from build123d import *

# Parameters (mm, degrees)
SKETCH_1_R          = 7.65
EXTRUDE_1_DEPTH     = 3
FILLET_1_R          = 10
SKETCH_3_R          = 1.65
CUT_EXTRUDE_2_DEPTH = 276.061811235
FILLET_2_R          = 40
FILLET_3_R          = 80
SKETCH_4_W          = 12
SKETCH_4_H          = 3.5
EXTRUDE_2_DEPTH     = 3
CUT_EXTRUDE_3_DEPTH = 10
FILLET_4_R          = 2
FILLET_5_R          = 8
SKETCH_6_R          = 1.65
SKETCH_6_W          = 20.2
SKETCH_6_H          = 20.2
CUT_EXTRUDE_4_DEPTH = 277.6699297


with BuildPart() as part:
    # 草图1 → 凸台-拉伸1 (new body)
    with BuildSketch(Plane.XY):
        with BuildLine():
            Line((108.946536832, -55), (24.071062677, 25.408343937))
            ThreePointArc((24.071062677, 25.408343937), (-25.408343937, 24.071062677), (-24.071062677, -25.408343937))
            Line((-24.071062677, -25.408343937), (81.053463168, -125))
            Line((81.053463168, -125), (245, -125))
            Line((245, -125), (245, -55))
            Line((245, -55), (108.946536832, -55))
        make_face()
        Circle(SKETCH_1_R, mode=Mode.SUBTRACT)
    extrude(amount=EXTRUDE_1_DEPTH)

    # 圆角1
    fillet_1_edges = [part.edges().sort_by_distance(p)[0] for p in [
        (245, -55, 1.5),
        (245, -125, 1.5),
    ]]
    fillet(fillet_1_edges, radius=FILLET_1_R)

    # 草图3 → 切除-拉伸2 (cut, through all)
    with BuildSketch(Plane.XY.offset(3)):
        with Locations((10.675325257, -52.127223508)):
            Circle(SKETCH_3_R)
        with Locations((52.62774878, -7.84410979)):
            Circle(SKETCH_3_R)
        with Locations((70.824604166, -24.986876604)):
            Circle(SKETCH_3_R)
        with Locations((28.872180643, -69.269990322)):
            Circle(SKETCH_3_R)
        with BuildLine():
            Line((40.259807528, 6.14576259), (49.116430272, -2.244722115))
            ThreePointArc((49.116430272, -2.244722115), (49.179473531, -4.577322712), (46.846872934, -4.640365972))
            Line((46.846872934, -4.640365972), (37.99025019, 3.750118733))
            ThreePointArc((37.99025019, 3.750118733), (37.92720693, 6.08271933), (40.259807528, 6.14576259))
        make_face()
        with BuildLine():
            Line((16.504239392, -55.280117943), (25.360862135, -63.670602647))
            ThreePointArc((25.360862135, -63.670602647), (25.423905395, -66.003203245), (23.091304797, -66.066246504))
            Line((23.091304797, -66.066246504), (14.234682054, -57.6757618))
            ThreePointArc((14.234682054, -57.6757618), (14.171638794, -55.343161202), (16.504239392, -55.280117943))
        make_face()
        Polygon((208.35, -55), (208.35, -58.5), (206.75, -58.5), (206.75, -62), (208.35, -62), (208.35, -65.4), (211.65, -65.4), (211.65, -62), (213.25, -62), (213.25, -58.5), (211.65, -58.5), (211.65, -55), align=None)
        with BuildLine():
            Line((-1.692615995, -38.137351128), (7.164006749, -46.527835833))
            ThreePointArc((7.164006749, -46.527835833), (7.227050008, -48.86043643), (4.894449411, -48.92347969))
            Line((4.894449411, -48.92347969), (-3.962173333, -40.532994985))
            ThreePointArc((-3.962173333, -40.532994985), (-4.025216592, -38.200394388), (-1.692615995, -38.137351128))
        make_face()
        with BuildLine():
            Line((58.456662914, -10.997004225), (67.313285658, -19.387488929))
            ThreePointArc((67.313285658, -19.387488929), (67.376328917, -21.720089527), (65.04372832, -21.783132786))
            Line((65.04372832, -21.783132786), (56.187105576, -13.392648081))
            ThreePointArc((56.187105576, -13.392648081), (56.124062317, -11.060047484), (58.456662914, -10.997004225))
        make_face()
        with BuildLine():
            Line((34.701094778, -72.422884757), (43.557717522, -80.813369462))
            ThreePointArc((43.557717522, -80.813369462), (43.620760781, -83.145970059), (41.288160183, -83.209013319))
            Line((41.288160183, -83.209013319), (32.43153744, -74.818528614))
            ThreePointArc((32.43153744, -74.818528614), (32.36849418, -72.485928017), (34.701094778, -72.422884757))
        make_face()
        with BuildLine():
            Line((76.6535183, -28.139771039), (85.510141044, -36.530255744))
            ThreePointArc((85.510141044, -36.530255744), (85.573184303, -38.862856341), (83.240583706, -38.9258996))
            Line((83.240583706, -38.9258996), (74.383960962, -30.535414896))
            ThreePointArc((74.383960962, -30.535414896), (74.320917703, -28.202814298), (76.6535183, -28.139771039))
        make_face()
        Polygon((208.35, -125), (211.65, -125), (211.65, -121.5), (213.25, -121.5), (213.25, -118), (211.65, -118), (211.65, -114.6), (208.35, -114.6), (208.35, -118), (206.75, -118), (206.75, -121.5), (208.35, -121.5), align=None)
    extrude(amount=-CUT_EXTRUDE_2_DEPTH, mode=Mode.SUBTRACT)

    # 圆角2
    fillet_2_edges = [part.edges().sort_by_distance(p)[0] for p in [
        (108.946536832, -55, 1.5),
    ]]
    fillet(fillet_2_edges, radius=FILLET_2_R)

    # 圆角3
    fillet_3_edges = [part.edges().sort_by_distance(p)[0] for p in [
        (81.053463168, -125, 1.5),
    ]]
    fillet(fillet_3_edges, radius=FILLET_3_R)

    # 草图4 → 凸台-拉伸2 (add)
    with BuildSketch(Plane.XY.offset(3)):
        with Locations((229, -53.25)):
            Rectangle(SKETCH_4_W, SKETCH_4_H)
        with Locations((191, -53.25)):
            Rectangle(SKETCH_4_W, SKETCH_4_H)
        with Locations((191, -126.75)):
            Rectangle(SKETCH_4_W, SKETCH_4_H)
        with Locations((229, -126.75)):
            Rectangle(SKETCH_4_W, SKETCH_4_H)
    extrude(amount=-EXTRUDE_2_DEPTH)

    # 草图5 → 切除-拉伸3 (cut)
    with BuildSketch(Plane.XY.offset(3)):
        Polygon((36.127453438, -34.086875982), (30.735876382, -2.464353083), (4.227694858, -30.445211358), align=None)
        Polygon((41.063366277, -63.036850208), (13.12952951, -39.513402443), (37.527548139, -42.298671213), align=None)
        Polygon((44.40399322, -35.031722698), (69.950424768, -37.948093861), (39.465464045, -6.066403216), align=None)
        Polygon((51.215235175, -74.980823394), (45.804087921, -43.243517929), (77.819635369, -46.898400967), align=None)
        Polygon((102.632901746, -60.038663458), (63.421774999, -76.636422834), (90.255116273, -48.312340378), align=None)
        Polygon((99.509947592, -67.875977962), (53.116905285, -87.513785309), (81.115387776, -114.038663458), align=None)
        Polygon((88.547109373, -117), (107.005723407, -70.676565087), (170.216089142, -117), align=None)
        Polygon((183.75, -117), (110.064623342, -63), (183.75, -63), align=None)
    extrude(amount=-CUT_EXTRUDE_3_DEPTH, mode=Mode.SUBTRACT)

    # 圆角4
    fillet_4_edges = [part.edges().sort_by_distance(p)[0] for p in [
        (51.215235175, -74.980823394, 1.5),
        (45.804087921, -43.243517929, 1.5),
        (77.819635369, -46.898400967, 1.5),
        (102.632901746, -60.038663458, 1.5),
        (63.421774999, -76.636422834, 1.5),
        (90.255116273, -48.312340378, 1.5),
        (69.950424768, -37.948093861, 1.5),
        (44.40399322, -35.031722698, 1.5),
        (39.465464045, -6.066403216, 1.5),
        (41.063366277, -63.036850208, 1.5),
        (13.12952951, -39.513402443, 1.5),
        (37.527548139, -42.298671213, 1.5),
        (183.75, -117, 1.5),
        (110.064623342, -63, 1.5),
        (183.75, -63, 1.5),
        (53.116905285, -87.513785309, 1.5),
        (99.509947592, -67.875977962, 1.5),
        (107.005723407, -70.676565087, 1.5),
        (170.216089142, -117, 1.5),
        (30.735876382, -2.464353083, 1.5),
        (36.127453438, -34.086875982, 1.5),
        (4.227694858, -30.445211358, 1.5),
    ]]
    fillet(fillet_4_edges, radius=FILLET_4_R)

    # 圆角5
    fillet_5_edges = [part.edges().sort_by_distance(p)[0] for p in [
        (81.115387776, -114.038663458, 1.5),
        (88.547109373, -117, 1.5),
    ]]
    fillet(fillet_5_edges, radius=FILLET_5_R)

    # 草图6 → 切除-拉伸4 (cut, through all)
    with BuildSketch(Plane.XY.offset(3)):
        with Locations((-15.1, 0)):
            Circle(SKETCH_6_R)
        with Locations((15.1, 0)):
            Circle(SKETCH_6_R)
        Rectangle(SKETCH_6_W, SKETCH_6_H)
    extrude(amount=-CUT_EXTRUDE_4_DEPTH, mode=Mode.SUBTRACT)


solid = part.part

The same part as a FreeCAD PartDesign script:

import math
import FreeCAD as App
import Part
import Sketcher
from FreeCAD import Vector


def edges_at(feature, points):
    """Names of the edges that pass closest to the given points."""
    edges = feature.Shape.Edges
    near = lambda p: min(range(len(edges)), key=lambda i: edges[i].distToShape(Part.Vertex(*p))[0])
    return sorted({f"Edge{near(p) + 1}" for p in points})


def add_polygon(sketch, points):
    """Adds a closed chain of lines whose ends are joined by coincident constraints."""
    first, n = sketch.GeometryCount, len(points)
    for a, b in zip(points, points[1:] + points[:1]):
        sketch.addGeometry(Part.LineSegment(App.Vector(*a, 0), App.Vector(*b, 0)), False)
    for i in range(n):
        sketch.addConstraint(Sketcher.Constraint("Coincident", first + i, 2, first + (i + 1) % n, 1))

doc = App.newDocument("Part")
body = doc.addObject("PartDesign::Body", "Body")

# Sketch on XY plane
sketch1 = doc.addObject("Sketcher::SketchObject", "Sketch")
body.addObject(sketch1)
sketch1.AttachmentSupport = (doc.XY_Plane, [""])
sketch1.MapMode = "FlatFace"
sketch1.addGeometry(Part.LineSegment(Vector(109, -55, 0), Vector(24, 25, 0)), False)
sketch1.addGeometry(Part.ArcOfCircle(Part.Circle(Vector(0, 0, 0), Vector(0, 0, 1), 35), math.radians(47), math.radians(227)), False)
sketch1.addGeometry(Part.LineSegment(Vector(-24, -25, 0), Vector(81, -125, 0)), False)
sketch1.addGeometry(Part.LineSegment(Vector(81, -125, 0), Vector(245, -125, 0)), False)
sketch1.addGeometry(Part.LineSegment(Vector(245, -125, 0), Vector(245, -55, 0)), False)
sketch1.addGeometry(Part.LineSegment(Vector(245, -55, 0), Vector(109, -55, 0)), False)
sketch1.addGeometry(Part.Circle(Vector(0, 0, 0), Vector(0, 0, 1), 8), False)
sketch1.addConstraint(Sketcher.Constraint("Tangent", 0, 2, 1, 1))
sketch1.addConstraint(Sketcher.Constraint("Tangent", 1, 2, 2, 1))
sketch1.addConstraint(Sketcher.Constraint("Coincident", 2, 2, 3, 1))
sketch1.addConstraint(Sketcher.Constraint("Coincident", 3, 2, 4, 1))
sketch1.addConstraint(Sketcher.Constraint("Coincident", 4, 2, 5, 1))
sketch1.addConstraint(Sketcher.Constraint("Coincident", 5, 2, 0, 1))
sketch1.addConstraint(Sketcher.Constraint("Horizontal", 3))
sketch1.addConstraint(Sketcher.Constraint("Vertical", 4))
sketch1.addConstraint(Sketcher.Constraint("Horizontal", 5))
sketch1.addConstraint(Sketcher.Constraint("Coincident", 1, 3, -1, 1))
sketch1.addConstraint(Sketcher.Constraint("Coincident", 6, 3, -1, 1))
sketch1.addConstraint(Sketcher.Constraint("Parallel", 0, 2))
sketch1.addConstraint(Sketcher.Constraint("Radius", 1, 35.0))
sketch1.addConstraint(Sketcher.Constraint("Diameter", 6, 15.3))
sketch1.addConstraint(Sketcher.Constraint("DistanceY", 4, 1, 4, 2, 70.0))
sketch1.addConstraint(Sketcher.Constraint("DistanceY", 2, 2, -1, 1, 125.0))
sketch1.addConstraint(Sketcher.Constraint("DistanceX", -1, 1, 3, 2, 245.0))
sketch1.addConstraint(Sketcher.Constraint("DistanceX", 0, 2, 2, 2, 56.9824))
pad1 = doc.addObject("PartDesign::Pad", "Pad")
body.addObject(pad1)
pad1.Profile = sketch1
pad1.Length = 3
doc.recompute()

fillet = doc.addObject("PartDesign::Fillet", "Fillet")
body.addObject(fillet)
fillet.Base = (pad1, edges_at(pad1, [(245, -55, 1.5), (245, -125, 1.5)]))
fillet.Radius = 10

# Sketch on XY plane
sketch2 = doc.addObject("Sketcher::SketchObject", "Sketch001")
body.addObject(sketch2)
sketch2.AttachmentSupport = (doc.XY_Plane, [""])
sketch2.MapMode = "FlatFace"
sketch2.AttachmentOffset = App.Placement(Vector(0, 0, 3), App.Rotation())
sketch2.addGeometry(Part.Circle(Vector(10.7, -52.1, 0), Vector(0, 0, 1), 1.6), False)  # 0
sketch2.addGeometry(Part.Circle(Vector(52.6, -7.8, 0), Vector(0, 0, 1), 1.6), False)  # 1
sketch2.addGeometry(Part.Circle(Vector(70.8, -25, 0), Vector(0, 0, 1), 1.6), False)  # 2
sketch2.addGeometry(Part.Circle(Vector(28.9, -69.3, 0), Vector(0, 0, 1), 1.6), False)  # 3
sketch2.addGeometry(Part.LineSegment(Vector(49.1, -2.2, 0), Vector(40.3, 6.1, 0)), False)  # 4
sketch2.addGeometry(Part.ArcOfCircle(Part.Circle(Vector(39.1, 4.9, 0), Vector(0, 0, 1), 1.6), math.radians(47), math.radians(227)), False)  # 5
sketch2.addGeometry(Part.LineSegment(Vector(38, 3.8, 0), Vector(46.8, -4.6, 0)), False)  # 6
sketch2.addGeometry(Part.ArcOfCircle(Part.Circle(Vector(48, -3.4, 0), Vector(0, 0, 1), 1.6), math.radians(-133), math.radians(47)), False)  # 7
sketch2.addGeometry(Part.LineSegment(Vector(25.4, -63.7, 0), Vector(16.5, -55.3, 0)), False)  # 8
sketch2.addGeometry(Part.ArcOfCircle(Part.Circle(Vector(15.4, -56.5, 0), Vector(0, 0, 1), 1.6), math.radians(47), math.radians(227)), False)  # 9
sketch2.addGeometry(Part.LineSegment(Vector(14.2, -57.7, 0), Vector(23.1, -66.1, 0)), False)  # 10
sketch2.addGeometry(Part.ArcOfCircle(Part.Circle(Vector(24.2, -64.9, 0), Vector(0, 0, 1), 1.6), math.radians(-133), math.radians(47)), False)  # 11
add_polygon(sketch2, [(208.3, -55), (208.3, -58.5), (206.8, -58.5), (206.8, -62), (208.3, -62), (208.3, -65.4), (211.7, -65.4), (211.7, -62), (213.2, -62), (213.2, -58.5), (211.7, -58.5), (211.7, -55)])  # lines 12-23
sketch2.addGeometry(Part.LineSegment(Vector(7.2, -46.5, 0), Vector(-1.7, -38.1, 0)), False)  # 24
sketch2.addGeometry(Part.ArcOfCircle(Part.Circle(Vector(-2.8, -39.3, 0), Vector(0, 0, 1), 1.6), math.radians(47), math.radians(227)), False)  # 25
sketch2.addGeometry(Part.LineSegment(Vector(-4, -40.5, 0), Vector(4.9, -48.9, 0)), False)  # 26
sketch2.addGeometry(Part.ArcOfCircle(Part.Circle(Vector(6, -47.7, 0), Vector(0, 0, 1), 1.6), math.radians(-133), math.radians(47)), False)  # 27
sketch2.addGeometry(Part.LineSegment(Vector(67.3, -19.4, 0), Vector(58.5, -11, 0)), False)  # 28
sketch2.addGeometry(Part.ArcOfCircle(Part.Circle(Vector(57.3, -12.2, 0), Vector(0, 0, 1), 1.6), math.radians(47), math.radians(227)), False)  # 29
sketch2.addGeometry(Part.LineSegment(Vector(56.2, -13.4, 0), Vector(65, -21.8, 0)), False)  # 30
sketch2.addGeometry(Part.ArcOfCircle(Part.Circle(Vector(66.2, -20.6, 0), Vector(0, 0, 1), 1.6), math.radians(-133), math.radians(47)), False)  # 31
sketch2.addGeometry(Part.LineSegment(Vector(43.6, -80.8, 0), Vector(34.7, -72.4, 0)), False)  # 32
sketch2.addGeometry(Part.ArcOfCircle(Part.Circle(Vector(33.6, -73.6, 0), Vector(0, 0, 1), 1.6), math.radians(47), math.radians(227)), False)  # 33
sketch2.addGeometry(Part.LineSegment(Vector(32.4, -74.8, 0), Vector(41.3, -83.2, 0)), False)  # 34
sketch2.addGeometry(Part.ArcOfCircle(Part.Circle(Vector(42.4, -82, 0), Vector(0, 0, 1), 1.6), math.radians(-133), math.radians(47)), False)  # 35
sketch2.addGeometry(Part.LineSegment(Vector(85.5, -36.5, 0), Vector(76.7, -28.1, 0)), False)  # 36
sketch2.addGeometry(Part.ArcOfCircle(Part.Circle(Vector(75.5, -29.3, 0), Vector(0, 0, 1), 1.6), math.radians(47), math.radians(227)), False)  # 37
sketch2.addGeometry(Part.LineSegment(Vector(74.4, -30.5, 0), Vector(83.2, -38.9, 0)), False)  # 38
sketch2.addGeometry(Part.ArcOfCircle(Part.Circle(Vector(84.4, -37.7, 0), Vector(0, 0, 1), 1.6), math.radians(-133), math.radians(47)), False)  # 39
add_polygon(sketch2, [(208.3, -125), (211.7, -125), (211.7, -121.5), (213.2, -121.5), (213.2, -118), (211.7, -118), (211.7, -114.6), (208.3, -114.6), (208.3, -118), (206.8, -118), (206.8, -121.5), (208.3, -121.5)])  # lines 40-51
sketch2.addConstraint(Sketcher.Constraint("Tangent", 4, 2, 5, 1))
sketch2.addConstraint(Sketcher.Constraint("Tangent", 5, 2, 6, 1))
sketch2.addConstraint(Sketcher.Constraint("Tangent", 6, 2, 7, 1))
sketch2.addConstraint(Sketcher.Constraint("Tangent", 7, 2, 4, 1))
sketch2.addConstraint(Sketcher.Constraint("Tangent", 8, 2, 9, 1))
sketch2.addConstraint(Sketcher.Constraint("Tangent", 9, 2, 10, 1))
sketch2.addConstraint(Sketcher.Constraint("Tangent", 10, 2, 11, 1))
sketch2.addConstraint(Sketcher.Constraint("Tangent", 11, 2, 8, 1))
sketch2.addConstraint(Sketcher.Constraint("Tangent", 24, 2, 25, 1))
sketch2.addConstraint(Sketcher.Constraint("Tangent", 25, 2, 26, 1))
sketch2.addConstraint(Sketcher.Constraint("Tangent", 26, 2, 27, 1))
sketch2.addConstraint(Sketcher.Constraint("Tangent", 27, 2, 24, 1))
sketch2.addConstraint(Sketcher.Constraint("Tangent", 28, 2, 29, 1))
sketch2.addConstraint(Sketcher.Constraint("Tangent", 29, 2, 30, 1))
sketch2.addConstraint(Sketcher.Constraint("Tangent", 30, 2, 31, 1))
sketch2.addConstraint(Sketcher.Constraint("Tangent", 31, 2, 28, 1))
sketch2.addConstraint(Sketcher.Constraint("Tangent", 32, 2, 33, 1))
sketch2.addConstraint(Sketcher.Constraint("Tangent", 33, 2, 34, 1))
sketch2.addConstraint(Sketcher.Constraint("Tangent", 34, 2, 35, 1))
sketch2.addConstraint(Sketcher.Constraint("Tangent", 35, 2, 32, 1))
sketch2.addConstraint(Sketcher.Constraint("Tangent", 36, 2, 37, 1))
sketch2.addConstraint(Sketcher.Constraint("Tangent", 37, 2, 38, 1))
sketch2.addConstraint(Sketcher.Constraint("Tangent", 38, 2, 39, 1))
sketch2.addConstraint(Sketcher.Constraint("Tangent", 39, 2, 36, 1))
sketch2.addConstraint(Sketcher.Constraint("Vertical", 12))
sketch2.addConstraint(Sketcher.Constraint("Horizontal", 13))
sketch2.addConstraint(Sketcher.Constraint("Vertical", 14))
sketch2.addConstraint(Sketcher.Constraint("Horizontal", 15))
sketch2.addConstraint(Sketcher.Constraint("Vertical", 16))
sketch2.addConstraint(Sketcher.Constraint("Horizontal", 17))
sketch2.addConstraint(Sketcher.Constraint("Vertical", 18))
sketch2.addConstraint(Sketcher.Constraint("Horizontal", 19))
sketch2.addConstraint(Sketcher.Constraint("Vertical", 20))
sketch2.addConstraint(Sketcher.Constraint("Horizontal", 21))
sketch2.addConstraint(Sketcher.Constraint("Vertical", 22))
sketch2.addConstraint(Sketcher.Constraint("Horizontal", 23))
sketch2.addConstraint(Sketcher.Constraint("Horizontal", 40))
sketch2.addConstraint(Sketcher.Constraint("Vertical", 41))
sketch2.addConstraint(Sketcher.Constraint("Horizontal", 42))
sketch2.addConstraint(Sketcher.Constraint("Vertical", 43))
sketch2.addConstraint(Sketcher.Constraint("Horizontal", 44))
sketch2.addConstraint(Sketcher.Constraint("Vertical", 45))
sketch2.addConstraint(Sketcher.Constraint("Horizontal", 46))
sketch2.addConstraint(Sketcher.Constraint("Vertical", 47))
sketch2.addConstraint(Sketcher.Constraint("Horizontal", 48))
sketch2.addConstraint(Sketcher.Constraint("Vertical", 49))
sketch2.addConstraint(Sketcher.Constraint("Horizontal", 50))
sketch2.addConstraint(Sketcher.Constraint("Vertical", 51))
sketch2.addConstraint(Sketcher.Constraint("Equal", 0, 1))
sketch2.addConstraint(Sketcher.Constraint("Equal", 1, 2))
sketch2.addConstraint(Sketcher.Constraint("Equal", 2, 3))
sketch2.addConstraint(Sketcher.Constraint("Equal", 3, 5))
sketch2.addConstraint(Sketcher.Constraint("Equal", 5, 7))
sketch2.addConstraint(Sketcher.Constraint("Equal", 7, 9))
sketch2.addConstraint(Sketcher.Constraint("Equal", 9, 11))
sketch2.addConstraint(Sketcher.Constraint("Equal", 11, 25))
sketch2.addConstraint(Sketcher.Constraint("Equal", 25, 27))
sketch2.addConstraint(Sketcher.Constraint("Equal", 27, 29))
sketch2.addConstraint(Sketcher.Constraint("Equal", 29, 31))
sketch2.addConstraint(Sketcher.Constraint("Equal", 31, 33))
sketch2.addConstraint(Sketcher.Constraint("Equal", 33, 35))
sketch2.addConstraint(Sketcher.Constraint("Equal", 35, 37))
sketch2.addConstraint(Sketcher.Constraint("Equal", 37, 39))
sketch2.addConstraint(Sketcher.Constraint("Parallel", 6, 8))
sketch2.addConstraint(Sketcher.Constraint("Parallel", 10, 24))
sketch2.addConstraint(Sketcher.Constraint("Parallel", 26, 28))
sketch2.addConstraint(Sketcher.Constraint("Parallel", 30, 32))
sketch2.addConstraint(Sketcher.Constraint("Parallel", 34, 36))
sketch2.addConstraint(Sketcher.Constraint("Horizontal", 15, 2, 18, 2))
sketch2.addConstraint(Sketcher.Constraint("Horizontal", 13, 2, 20, 2))
sketch2.addConstraint(Sketcher.Constraint("Horizontal", 44, 2, 47, 2))
sketch2.addConstraint(Sketcher.Constraint("Horizontal", 42, 2, 49, 2))
sketch2.addConstraint(Sketcher.Constraint("Vertical", 12, 2, 15, 2))
sketch2.addConstraint(Sketcher.Constraint("Vertical", 18, 2, 21, 2))
sketch2.addConstraint(Sketcher.Constraint("Vertical", 22, 2, 40, 2))
sketch2.addConstraint(Sketcher.Constraint("Vertical", 20, 2, 42, 2))
sketch2.addConstraint(Sketcher.Constraint("Vertical", 41, 2, 44, 2))
sketch2.addConstraint(Sketcher.Constraint("Vertical", 23, 2, 46, 2))
sketch2.addConstraint(Sketcher.Constraint("Vertical", 14, 2, 48, 2))
sketch2.addConstraint(Sketcher.Constraint("Vertical", 47, 2, 50, 2))
sketch2.addConstraint(Sketcher.Constraint("Equal", 15, 19))
sketch2.addConstraint(Sketcher.Constraint("Equal", 12, 14))
sketch2.addConstraint(Sketcher.Constraint("Equal", 22, 41))
sketch2.addConstraint(Sketcher.Constraint("Equal", 41, 43))
sketch2.addConstraint(Sketcher.Constraint("Equal", 18, 45))
sketch2.addConstraint(Sketcher.Constraint("Equal", 6, 8))
sketch2.addConstraint(Sketcher.Constraint("Equal", 10, 24))
sketch2.addConstraint(Sketcher.Constraint("Equal", 26, 28))
sketch2.addConstraint(Sketcher.Constraint("Equal", 30, 32))
sketch2.addConstraint(Sketcher.Constraint("Equal", 34, 36))
sketch2.addConstraint(Sketcher.Constraint("Diameter", 0, 3.3))
sketch2.addConstraint(Sketcher.Constraint("DistanceX", 13, 2, 13, 1, 1.6))
sketch2.addConstraint(Sketcher.Constraint("DistanceX", 17, 1, 17, 2, 3.3))
sketch2.addConstraint(Sketcher.Constraint("DistanceY", 12, 2, 12, 1, 3.5))
sketch2.addConstraint(Sketcher.Constraint("DistanceY", 16, 2, 16, 1, 3.4))
sketch2.addConstraint(Sketcher.Constraint("DistanceY", 14, 2, -1, 1, 62.0))
sketch2.addConstraint(Sketcher.Constraint("DistanceY", 40, 2, -1, 1, 125.0))
sketch2.addConstraint(Sketcher.Constraint("Distance", 4, 12.2))
sketch2.addConstraint(Sketcher.Constraint("DistanceX", -1, 1, 12, 2, 208.35))
sketch2.addConstraint(Sketcher.Constraint("DistanceY", 38, 2, -1, 1, 38.9259))
sketch2.addConstraint(Sketcher.Constraint("DistanceX", -1, 1, 1, 3, 52.627749))
sketch2.addConstraint(Sketcher.Constraint("DistanceY", 1, 3, -1, 1, 7.84411))
sketch2.addConstraint(Sketcher.Constraint("DistanceX", -1, 1, 3, 3, 28.872181))
sketch2.addConstraint(Sketcher.Constraint("DistanceY", 3, 3, -1, 1, 69.26999))
sketch2.addConstraint(Sketcher.Constraint("DistanceX", -1, 1, 5, 3, 39.125029))
sketch2.addConstraint(Sketcher.Constraint("DistanceY", -1, 1, 5, 3, 4.947941))
sketch2.addConstraint(Sketcher.Constraint("DistanceX", -1, 1, 7, 3, 47.981652))
sketch2.addConstraint(Sketcher.Constraint("DistanceX", -1, 1, 9, 3, 15.369461))
sketch2.addConstraint(Sketcher.Constraint("DistanceY", 9, 3, -1, 1, 56.47794))
sketch2.addConstraint(Sketcher.Constraint("DistanceX", -1, 1, 27, 3, 6.029228))
sketch2.addConstraint(Sketcher.Constraint("DistanceY", 31, 3, -1, 1, 20.585311))
sketch2.addConstraint(Sketcher.Constraint("DistanceX", -1, 1, 35, 3, 42.422939))
sketch2.addConstraint(Sketcher.Constraint("DistanceY", 35, 3, -1, 1, 82.011191))
sketch2.addConstraint(Sketcher.Constraint("DistanceX", -1, 1, 37, 3, 75.51874))
sketch2.addConstraint(Sketcher.Constraint("DistanceY", 24, 2, -1, 1, 38.137351))
sketch2.addConstraint(Sketcher.Constraint("DistanceX", -1, 1, 30, 2, 65.043728))
sketch2.addConstraint(Sketcher.Constraint("DistanceX", -1, 1, 0, 3, 10.675325))
sketch2.addConstraint(Sketcher.Constraint("DistanceY", 0, 3, -1, 1, 52.127224))
sketch2.addConstraint(Sketcher.Constraint("DistanceX", -1, 1, 2, 3, 70.824604))
sketch2.addConstraint(Sketcher.Constraint("DistanceY", 2, 3, -1, 1, 24.986877))
pocket1 = doc.addObject("PartDesign::Pocket", "Pocket")
body.addObject(pocket1)
pocket1.Profile = sketch2
pocket1.Type = "ThroughAll"
doc.recompute()

fillet2 = doc.addObject("PartDesign::Fillet", "Fillet001")
body.addObject(fillet2)
fillet2.Base = (pocket1, edges_at(pocket1, [(108.947, -55, 1.5)]))
fillet2.Radius = 40
doc.recompute()

fillet3 = doc.addObject("PartDesign::Fillet", "Fillet002")
body.addObject(fillet3)
fillet3.Base = (fillet2, edges_at(fillet2, [(81.053, -125, 1.5)]))
fillet3.Radius = 80

# Sketch on XY plane
sketch3 = doc.addObject("Sketcher::SketchObject", "Sketch002")
body.addObject(sketch3)
sketch3.AttachmentSupport = (doc.XY_Plane, [""])
sketch3.MapMode = "FlatFace"
sketch3.AttachmentOffset = App.Placement(Vector(0, 0, 3), App.Rotation())
add_polygon(sketch3, [(223, -51.5), (223, -55), (235, -55), (235, -51.5)])  # lines 0-3
add_polygon(sketch3, [(185, -51.5), (185, -55), (197, -55), (197, -51.5)])  # lines 4-7
add_polygon(sketch3, [(185, -125), (185, -128.5), (197, -128.5), (197, -125)])  # lines 8-11
add_polygon(sketch3, [(223, -125), (223, -128.5), (235, -128.5), (235, -125)])  # lines 12-15
sketch3.addConstraint(Sketcher.Constraint("Vertical", 0))
sketch3.addConstraint(Sketcher.Constraint("Horizontal", 1))
sketch3.addConstraint(Sketcher.Constraint("Vertical", 2))
sketch3.addConstraint(Sketcher.Constraint("Horizontal", 3))
sketch3.addConstraint(Sketcher.Constraint("Vertical", 4))
sketch3.addConstraint(Sketcher.Constraint("Horizontal", 5))
sketch3.addConstraint(Sketcher.Constraint("Vertical", 6))
sketch3.addConstraint(Sketcher.Constraint("Horizontal", 7))
sketch3.addConstraint(Sketcher.Constraint("Vertical", 8))
sketch3.addConstraint(Sketcher.Constraint("Horizontal", 9))
sketch3.addConstraint(Sketcher.Constraint("Vertical", 10))
sketch3.addConstraint(Sketcher.Constraint("Horizontal", 11))
sketch3.addConstraint(Sketcher.Constraint("Vertical", 12))
sketch3.addConstraint(Sketcher.Constraint("Horizontal", 13))
sketch3.addConstraint(Sketcher.Constraint("Vertical", 14))
sketch3.addConstraint(Sketcher.Constraint("Horizontal", 15))
sketch3.addConstraint(Sketcher.Constraint("Horizontal", 1, 2, 4, 2))
sketch3.addConstraint(Sketcher.Constraint("Horizontal", 3, 2, 6, 2))
sketch3.addConstraint(Sketcher.Constraint("Horizontal", 9, 2, 12, 2))
sketch3.addConstraint(Sketcher.Constraint("Horizontal", 11, 2, 14, 2))
sketch3.addConstraint(Sketcher.Constraint("Vertical", 7, 2, 8, 2))
sketch3.addConstraint(Sketcher.Constraint("Vertical", 6, 2, 9, 2))
sketch3.addConstraint(Sketcher.Constraint("Vertical", 3, 2, 12, 2))
sketch3.addConstraint(Sketcher.Constraint("Vertical", 2, 2, 13, 2))
sketch3.addConstraint(Sketcher.Constraint("Equal", 3, 5))
sketch3.addConstraint(Sketcher.Constraint("Equal", 6, 8))
sketch3.addConstraint(Sketcher.Constraint("DistanceX", 1, 1, 1, 2, 12.0))
sketch3.addConstraint(Sketcher.Constraint("DistanceY", 0, 2, 0, 1, 3.5))
sketch3.addConstraint(Sketcher.Constraint("DistanceX", -1, 1, 0, 2, 223.0))
sketch3.addConstraint(Sketcher.Constraint("DistanceY", 0, 2, -1, 1, 55.0))
sketch3.addConstraint(Sketcher.Constraint("DistanceX", -1, 1, 4, 2, 185.0))
sketch3.addConstraint(Sketcher.Constraint("DistanceY", 10, 2, -1, 1, 125.0))
pad2 = doc.addObject("PartDesign::Pad", "Pad001")
body.addObject(pad2)
pad2.Profile = sketch3
pad2.Length = 3
pad2.Reversed = True

# Sketch on XY plane
sketch4 = doc.addObject("Sketcher::SketchObject", "Sketch003")
body.addObject(sketch4)
sketch4.AttachmentSupport = (doc.XY_Plane, [""])
sketch4.MapMode = "FlatFace"
sketch4.AttachmentOffset = App.Placement(Vector(0, 0, 3), App.Rotation())
add_polygon(sketch4, [(36, -34), (31, -2), (4, -30)])  # lines 0-2
add_polygon(sketch4, [(13, -40), (41, -63), (38, -42)])  # lines 3-5
add_polygon(sketch4, [(44, -35), (70, -38), (39, -6)])  # lines 6-8
add_polygon(sketch4, [(46, -43), (51, -75), (78, -47)])  # lines 9-11
add_polygon(sketch4, [(63, -77), (103, -60), (90, -48)])  # lines 12-14
add_polygon(sketch4, [(100, -68), (53, -88), (81, -114)])  # lines 15-17
add_polygon(sketch4, [(107, -71), (89, -117), (170, -117)])  # lines 18-20
add_polygon(sketch4, [(110, -63), (184, -117), (184, -63)])  # lines 21-23
sketch4.addConstraint(Sketcher.Constraint("Horizontal", 19))
sketch4.addConstraint(Sketcher.Constraint("Vertical", 22))
sketch4.addConstraint(Sketcher.Constraint("Horizontal", 23))
sketch4.addConstraint(Sketcher.Constraint("Parallel", 0, 4))
sketch4.addConstraint(Sketcher.Constraint("Parallel", 2, 5))
sketch4.addConstraint(Sketcher.Constraint("Parallel", 5, 6))
sketch4.addConstraint(Sketcher.Constraint("Parallel", 4, 8))
sketch4.addConstraint(Sketcher.Constraint("Parallel", 8, 9))
sketch4.addConstraint(Sketcher.Constraint("Parallel", 1, 10))
sketch4.addConstraint(Sketcher.Constraint("Parallel", 6, 11))
sketch4.addConstraint(Sketcher.Constraint("Perpendicular", 10, 13))
sketch4.addConstraint(Sketcher.Constraint("Perpendicular", 13, 14))
sketch4.addConstraint(Sketcher.Constraint("Parallel", 12, 15))
sketch4.addConstraint(Sketcher.Constraint("Perpendicular", 14, 16))
sketch4.addConstraint(Sketcher.Constraint("Parallel", 17, 18))
sketch4.addConstraint(Sketcher.Constraint("Parallel", 20, 21))
sketch4.addConstraint(Sketcher.Constraint("Horizontal", 19, 2, 21, 2))
sketch4.addConstraint(Sketcher.Constraint("DistanceY", 22, 1, 22, 2, 54.0))
sketch4.addConstraint(Sketcher.Constraint("DistanceY", 18, 2, -1, 1, 117.0))
sketch4.addConstraint(Sketcher.Constraint("DistanceY", 16, 2, 12, 2, 54.0))
sketch4.addConstraint(Sketcher.Constraint("DistanceX", -1, 1, 21, 2, 183.75))
sketch4.addConstraint(Sketcher.Constraint("DistanceY", 5, 2, 7, 2, 33.446999))
sketch4.addConstraint(Sketcher.Constraint("Distance", 3, 36.519198))
sketch4.addConstraint(Sketcher.Constraint("Distance", 21, 91.353898))
sketch4.addConstraint(Sketcher.Constraint("DistanceX", 19, 1, 19, 2, 81.66898))
sketch4.addConstraint(Sketcher.Constraint("DistanceY", 10, 2, -1, 1, 46.898401))
sketch4.addConstraint(Sketcher.Constraint("DistanceX", -1, 1, 12, 2, 102.632902))
sketch4.addConstraint(Sketcher.Constraint("DistanceY", 9, 2, 8, 2, 39.949101))
sketch4.addConstraint(Sketcher.Constraint("DistanceX", 9, 2, 10, 2, 26.6044))
sketch4.addConstraint(Sketcher.Constraint("DistanceY", 14, 2, 9, 2, 1.655599))
sketch4.addConstraint(Sketcher.Constraint("DistanceX", 16, 2, 19, 2, 89.100701))
sketch4.addConstraint(Sketcher.Constraint("DistanceY", 20, 2, 12, 2, 10.637902))
sketch4.addConstraint(Sketcher.Constraint("DistanceX", 20, 2, 23, 2, 3.0589))
sketch4.addConstraint(Sketcher.Constraint("Distance", 1, 38.543639))
sketch4.addConstraint(Sketcher.Constraint("Distance", 2, 32.106951))
sketch4.addConstraint(Sketcher.Constraint("Distance", 6, 25.712359))
sketch4.addConstraint(Sketcher.Constraint("Distance", 7, 44.11094))
sketch4.addConstraint(Sketcher.Constraint("Distance", 8, 29.383308))
sketch4.addConstraint(Sketcher.Constraint("Distance", 14, 39.016431))
sketch4.addConstraint(Sketcher.Constraint("Distance", 15, 50.378149))
sketch4.addConstraint(Sketcher.Constraint("Distance", 17, 49.692589))
sketch4.addConstraint(Sketcher.Constraint("Distance", 18, 49.86563))
sketch4.addConstraint(Sketcher.Constraint("DistanceY", 1, 2, -1, 1, 30.445211))
sketch4.addConstraint(Sketcher.Constraint("DistanceY", 3, 2, -1, 1, 63.03685))
sketch4.addConstraint(Sketcher.Constraint("DistanceX", -1, 1, 4, 2, 37.527548))
sketch4.addConstraint(Sketcher.Constraint("DistanceX", 1, 2, 3, 2, 36.835671))
sketch4.addConstraint(Sketcher.Constraint("DistanceX", 2, 2, 6, 2, 33.822971))
sketch4.addConstraint(Sketcher.Constraint("DistanceX", 3, 2, 9, 2, 10.151869))
pocket2 = doc.addObject("PartDesign::Pocket", "Pocket001")
body.addObject(pocket2)
pocket2.Profile = sketch4
pocket2.Length = 10
doc.recompute()

fillet4 = doc.addObject("PartDesign::Fillet", "Fillet003")
body.addObject(fillet4)
fillet4.Base = (pocket2, edges_at(pocket2, [
    (51.215, -74.981, 1.5),
    (45.804, -43.244, 1.5),
    (77.82, -46.898, 1.5),
    (102.633, -60.039, 1.5),
    (63.422, -76.636, 1.5),
    (90.255, -48.312, 1.5),
    (69.95, -37.948, 1.5),
    (44.404, -35.032, 1.5),
    (39.465, -6.066, 1.5),
    (41.063, -63.037, 1.5),
    (13.13, -39.513, 1.5),
    (37.528, -42.299, 1.5),
    (183.75, -117, 1.5),
    (110.065, -63, 1.5),
    (183.75, -63, 1.5),
    (53.117, -87.514, 1.5),
    (99.51, -67.876, 1.5),
    (107.006, -70.677, 1.5),
    (170.216, -117, 1.5),
    (30.736, -2.464, 1.5),
    (36.127, -34.087, 1.5),
    (4.228, -30.445, 1.5),
]))
fillet4.Radius = 2
doc.recompute()

fillet5 = doc.addObject("PartDesign::Fillet", "Fillet004")
body.addObject(fillet5)
fillet5.Base = (fillet4, edges_at(fillet4, [(81.115, -114.039, 1.5), (88.547, -117, 1.5)]))
fillet5.Radius = 8

# Sketch on XY plane
sketch5 = doc.addObject("Sketcher::SketchObject", "Sketch004")
body.addObject(sketch5)
sketch5.AttachmentSupport = (doc.XY_Plane, [""])
sketch5.MapMode = "FlatFace"
sketch5.AttachmentOffset = App.Placement(Vector(0, 0, 3), App.Rotation())
sketch5.addGeometry(Part.Circle(Vector(-15.1, 0, 0), Vector(0, 0, 1), 1.6), False)  # 0
sketch5.addGeometry(Part.Circle(Vector(15.1, 0, 0), Vector(0, 0, 1), 1.6), False)  # 1
add_polygon(sketch5, [(-10.1, 10.1), (-10.1, -10.1), (10.1, -10.1), (10.1, 10.1)])  # lines 2-5
sketch5.addConstraint(Sketcher.Constraint("Vertical", 2))
sketch5.addConstraint(Sketcher.Constraint("Horizontal", 3))
sketch5.addConstraint(Sketcher.Constraint("Vertical", 4))
sketch5.addConstraint(Sketcher.Constraint("Horizontal", 5))
sketch5.addConstraint(Sketcher.Constraint("Equal", 0, 1))
sketch5.addConstraint(Sketcher.Constraint("Symmetric", 0, 3, 1, 3, -1, 1))
sketch5.addConstraint(Sketcher.Constraint("Symmetric", 2, 2, 4, 2, -1, 1))
sketch5.addConstraint(Sketcher.Constraint("PointOnObject", 0, 3, -1))
sketch5.addConstraint(Sketcher.Constraint("Equal", 5, 2))
sketch5.addConstraint(Sketcher.Constraint("Diameter", 0, 3.3))
sketch5.addConstraint(Sketcher.Constraint("DistanceX", 3, 1, 3, 2, 20.2))
sketch5.addConstraint(Sketcher.Constraint("DistanceX", 0, 3, 2, 2, 5.0))
pocket3 = doc.addObject("PartDesign::Pocket", "Pocket002")
body.addObject(pocket3)
pocket3.Profile = sketch5
pocket3.Type = "ThroughAll"

doc.recompute()
